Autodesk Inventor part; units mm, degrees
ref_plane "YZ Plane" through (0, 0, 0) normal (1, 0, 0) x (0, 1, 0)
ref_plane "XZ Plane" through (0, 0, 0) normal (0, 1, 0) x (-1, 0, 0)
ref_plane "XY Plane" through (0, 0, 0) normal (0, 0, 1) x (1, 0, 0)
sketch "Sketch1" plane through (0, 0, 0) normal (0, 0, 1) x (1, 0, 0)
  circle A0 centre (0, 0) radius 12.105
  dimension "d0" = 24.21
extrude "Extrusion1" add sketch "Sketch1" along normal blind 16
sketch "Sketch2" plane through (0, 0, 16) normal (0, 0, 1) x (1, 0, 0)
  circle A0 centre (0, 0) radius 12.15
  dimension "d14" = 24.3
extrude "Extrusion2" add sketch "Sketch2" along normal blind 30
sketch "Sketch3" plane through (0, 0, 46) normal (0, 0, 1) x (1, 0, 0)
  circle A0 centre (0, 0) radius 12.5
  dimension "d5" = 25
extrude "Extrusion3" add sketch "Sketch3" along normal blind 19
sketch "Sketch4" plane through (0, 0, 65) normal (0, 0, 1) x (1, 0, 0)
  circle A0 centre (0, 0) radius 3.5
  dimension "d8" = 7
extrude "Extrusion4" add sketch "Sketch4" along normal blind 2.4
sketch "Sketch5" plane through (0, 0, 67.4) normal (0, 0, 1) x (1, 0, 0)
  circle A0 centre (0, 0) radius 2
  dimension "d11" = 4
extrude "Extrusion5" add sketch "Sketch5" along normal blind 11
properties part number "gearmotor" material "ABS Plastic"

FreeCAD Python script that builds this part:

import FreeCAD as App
import Part
import Sketcher
Q = App.Units.Quantity

doc = App.newDocument("Part")
body = doc.addObject("PartDesign::Body", "Body")

sketch1 = body.newObject("Sketcher::SketchObject", "Sketch")
sketch1.AttachmentSupport = (doc.getObject("XY_Plane"), [""])
sketch1.MapMode = "FlatFace"
sketch1.addGeometry(Part.Circle(App.Vector(0, 0, 0), App.Vector(0, 0, 1), 12.105), False)
sketch1.addConstraint(Sketcher.Constraint("Coincident", 0, 3, -1, 1))
sketch1.addConstraint(Sketcher.Constraint("Diameter", 0, Q("24.21 mm")))
pad1 = body.newObject("PartDesign::Pad", "Pad")
pad1.Profile = sketch1
pad1.Length = 16

sketch2 = body.newObject("Sketcher::SketchObject", "Sketch001")
sketch2.AttachmentSupport = (doc.getObject("XY_Plane"), [""])
sketch2.MapMode = "FlatFace"
sketch2.AttachmentOffset = App.Placement(App.Vector(0, 0, 16), App.Rotation())
sketch2.addGeometry(Part.Circle(App.Vector(0, 0, 0), App.Vector(0, 0, 1), 12.15), False)
sketch2.addConstraint(Sketcher.Constraint("Coincident", 0, 3, -1, 1))
sketch2.addConstraint(Sketcher.Constraint("Diameter", 0, Q("24.3 mm")))
pad2 = body.newObject("PartDesign::Pad", "Pad001")
pad2.Profile = sketch2
pad2.Length = 30

sketch3 = body.newObject("Sketcher::SketchObject", "Sketch002")
sketch3.AttachmentSupport = (doc.getObject("XY_Plane"), [""])
sketch3.MapMode = "FlatFace"
sketch3.AttachmentOffset = App.Placement(App.Vector(0, 0, 46), App.Rotation())
sketch3.addGeometry(Part.Circle(App.Vector(0, 0, 0), App.Vector(0, 0, 1), 12.5), False)
sketch3.addConstraint(Sketcher.Constraint("Coincident", 0, 3, -1, 1))
sketch3.addConstraint(Sketcher.Constraint("Diameter", 0, Q("25 mm")))
pad3 = body.newObject("PartDesign::Pad", "Pad002")
pad3.Profile = sketch3
pad3.Length = 19

sketch4 = body.newObject("Sketcher::SketchObject", "Sketch003")
sketch4.AttachmentSupport = (doc.getObject("XY_Plane"), [""])
sketch4.MapMode = "FlatFace"
sketch4.AttachmentOffset = App.Placement(App.Vector(0, 0, 65), App.Rotation())
sketch4.addGeometry(Part.Circle(App.Vector(0, 0, 0), App.Vector(0, 0, 1), 3.5), False)
sketch4.addConstraint(Sketcher.Constraint("Coincident", 0, 3, -1, 1))
sketch4.addConstraint(Sketcher.Constraint("Diameter", 0, Q("7 mm")))
pad4 = body.newObject("PartDesign::Pad", "Pad003")
pad4.Profile = sketch4
pad4.Length = 2.4

sketch5 = body.newObject("Sketcher::SketchObject", "Sketch004")
sketch5.AttachmentSupport = (doc.getObject("XY_Plane"), [""])
sketch5.MapMode = "FlatFace"
sketch5.AttachmentOffset = App.Placement(App.Vector(0, 0, 67.4), App.Rotation())
sketch5.addGeometry(Part.Circle(App.Vector(0, 0, 0), App.Vector(0, 0, 1), 2), False)
sketch5.addConstraint(Sketcher.Constraint("Coincident", 0, 3, -1, 1))
sketch5.addConstraint(Sketcher.Constraint("Diameter", 0, Q("4 mm")))
pad5 = body.newObject("PartDesign::Pad", "Pad004")
pad5.Profile = sketch5
pad5.Length = 11

doc.recompute()
